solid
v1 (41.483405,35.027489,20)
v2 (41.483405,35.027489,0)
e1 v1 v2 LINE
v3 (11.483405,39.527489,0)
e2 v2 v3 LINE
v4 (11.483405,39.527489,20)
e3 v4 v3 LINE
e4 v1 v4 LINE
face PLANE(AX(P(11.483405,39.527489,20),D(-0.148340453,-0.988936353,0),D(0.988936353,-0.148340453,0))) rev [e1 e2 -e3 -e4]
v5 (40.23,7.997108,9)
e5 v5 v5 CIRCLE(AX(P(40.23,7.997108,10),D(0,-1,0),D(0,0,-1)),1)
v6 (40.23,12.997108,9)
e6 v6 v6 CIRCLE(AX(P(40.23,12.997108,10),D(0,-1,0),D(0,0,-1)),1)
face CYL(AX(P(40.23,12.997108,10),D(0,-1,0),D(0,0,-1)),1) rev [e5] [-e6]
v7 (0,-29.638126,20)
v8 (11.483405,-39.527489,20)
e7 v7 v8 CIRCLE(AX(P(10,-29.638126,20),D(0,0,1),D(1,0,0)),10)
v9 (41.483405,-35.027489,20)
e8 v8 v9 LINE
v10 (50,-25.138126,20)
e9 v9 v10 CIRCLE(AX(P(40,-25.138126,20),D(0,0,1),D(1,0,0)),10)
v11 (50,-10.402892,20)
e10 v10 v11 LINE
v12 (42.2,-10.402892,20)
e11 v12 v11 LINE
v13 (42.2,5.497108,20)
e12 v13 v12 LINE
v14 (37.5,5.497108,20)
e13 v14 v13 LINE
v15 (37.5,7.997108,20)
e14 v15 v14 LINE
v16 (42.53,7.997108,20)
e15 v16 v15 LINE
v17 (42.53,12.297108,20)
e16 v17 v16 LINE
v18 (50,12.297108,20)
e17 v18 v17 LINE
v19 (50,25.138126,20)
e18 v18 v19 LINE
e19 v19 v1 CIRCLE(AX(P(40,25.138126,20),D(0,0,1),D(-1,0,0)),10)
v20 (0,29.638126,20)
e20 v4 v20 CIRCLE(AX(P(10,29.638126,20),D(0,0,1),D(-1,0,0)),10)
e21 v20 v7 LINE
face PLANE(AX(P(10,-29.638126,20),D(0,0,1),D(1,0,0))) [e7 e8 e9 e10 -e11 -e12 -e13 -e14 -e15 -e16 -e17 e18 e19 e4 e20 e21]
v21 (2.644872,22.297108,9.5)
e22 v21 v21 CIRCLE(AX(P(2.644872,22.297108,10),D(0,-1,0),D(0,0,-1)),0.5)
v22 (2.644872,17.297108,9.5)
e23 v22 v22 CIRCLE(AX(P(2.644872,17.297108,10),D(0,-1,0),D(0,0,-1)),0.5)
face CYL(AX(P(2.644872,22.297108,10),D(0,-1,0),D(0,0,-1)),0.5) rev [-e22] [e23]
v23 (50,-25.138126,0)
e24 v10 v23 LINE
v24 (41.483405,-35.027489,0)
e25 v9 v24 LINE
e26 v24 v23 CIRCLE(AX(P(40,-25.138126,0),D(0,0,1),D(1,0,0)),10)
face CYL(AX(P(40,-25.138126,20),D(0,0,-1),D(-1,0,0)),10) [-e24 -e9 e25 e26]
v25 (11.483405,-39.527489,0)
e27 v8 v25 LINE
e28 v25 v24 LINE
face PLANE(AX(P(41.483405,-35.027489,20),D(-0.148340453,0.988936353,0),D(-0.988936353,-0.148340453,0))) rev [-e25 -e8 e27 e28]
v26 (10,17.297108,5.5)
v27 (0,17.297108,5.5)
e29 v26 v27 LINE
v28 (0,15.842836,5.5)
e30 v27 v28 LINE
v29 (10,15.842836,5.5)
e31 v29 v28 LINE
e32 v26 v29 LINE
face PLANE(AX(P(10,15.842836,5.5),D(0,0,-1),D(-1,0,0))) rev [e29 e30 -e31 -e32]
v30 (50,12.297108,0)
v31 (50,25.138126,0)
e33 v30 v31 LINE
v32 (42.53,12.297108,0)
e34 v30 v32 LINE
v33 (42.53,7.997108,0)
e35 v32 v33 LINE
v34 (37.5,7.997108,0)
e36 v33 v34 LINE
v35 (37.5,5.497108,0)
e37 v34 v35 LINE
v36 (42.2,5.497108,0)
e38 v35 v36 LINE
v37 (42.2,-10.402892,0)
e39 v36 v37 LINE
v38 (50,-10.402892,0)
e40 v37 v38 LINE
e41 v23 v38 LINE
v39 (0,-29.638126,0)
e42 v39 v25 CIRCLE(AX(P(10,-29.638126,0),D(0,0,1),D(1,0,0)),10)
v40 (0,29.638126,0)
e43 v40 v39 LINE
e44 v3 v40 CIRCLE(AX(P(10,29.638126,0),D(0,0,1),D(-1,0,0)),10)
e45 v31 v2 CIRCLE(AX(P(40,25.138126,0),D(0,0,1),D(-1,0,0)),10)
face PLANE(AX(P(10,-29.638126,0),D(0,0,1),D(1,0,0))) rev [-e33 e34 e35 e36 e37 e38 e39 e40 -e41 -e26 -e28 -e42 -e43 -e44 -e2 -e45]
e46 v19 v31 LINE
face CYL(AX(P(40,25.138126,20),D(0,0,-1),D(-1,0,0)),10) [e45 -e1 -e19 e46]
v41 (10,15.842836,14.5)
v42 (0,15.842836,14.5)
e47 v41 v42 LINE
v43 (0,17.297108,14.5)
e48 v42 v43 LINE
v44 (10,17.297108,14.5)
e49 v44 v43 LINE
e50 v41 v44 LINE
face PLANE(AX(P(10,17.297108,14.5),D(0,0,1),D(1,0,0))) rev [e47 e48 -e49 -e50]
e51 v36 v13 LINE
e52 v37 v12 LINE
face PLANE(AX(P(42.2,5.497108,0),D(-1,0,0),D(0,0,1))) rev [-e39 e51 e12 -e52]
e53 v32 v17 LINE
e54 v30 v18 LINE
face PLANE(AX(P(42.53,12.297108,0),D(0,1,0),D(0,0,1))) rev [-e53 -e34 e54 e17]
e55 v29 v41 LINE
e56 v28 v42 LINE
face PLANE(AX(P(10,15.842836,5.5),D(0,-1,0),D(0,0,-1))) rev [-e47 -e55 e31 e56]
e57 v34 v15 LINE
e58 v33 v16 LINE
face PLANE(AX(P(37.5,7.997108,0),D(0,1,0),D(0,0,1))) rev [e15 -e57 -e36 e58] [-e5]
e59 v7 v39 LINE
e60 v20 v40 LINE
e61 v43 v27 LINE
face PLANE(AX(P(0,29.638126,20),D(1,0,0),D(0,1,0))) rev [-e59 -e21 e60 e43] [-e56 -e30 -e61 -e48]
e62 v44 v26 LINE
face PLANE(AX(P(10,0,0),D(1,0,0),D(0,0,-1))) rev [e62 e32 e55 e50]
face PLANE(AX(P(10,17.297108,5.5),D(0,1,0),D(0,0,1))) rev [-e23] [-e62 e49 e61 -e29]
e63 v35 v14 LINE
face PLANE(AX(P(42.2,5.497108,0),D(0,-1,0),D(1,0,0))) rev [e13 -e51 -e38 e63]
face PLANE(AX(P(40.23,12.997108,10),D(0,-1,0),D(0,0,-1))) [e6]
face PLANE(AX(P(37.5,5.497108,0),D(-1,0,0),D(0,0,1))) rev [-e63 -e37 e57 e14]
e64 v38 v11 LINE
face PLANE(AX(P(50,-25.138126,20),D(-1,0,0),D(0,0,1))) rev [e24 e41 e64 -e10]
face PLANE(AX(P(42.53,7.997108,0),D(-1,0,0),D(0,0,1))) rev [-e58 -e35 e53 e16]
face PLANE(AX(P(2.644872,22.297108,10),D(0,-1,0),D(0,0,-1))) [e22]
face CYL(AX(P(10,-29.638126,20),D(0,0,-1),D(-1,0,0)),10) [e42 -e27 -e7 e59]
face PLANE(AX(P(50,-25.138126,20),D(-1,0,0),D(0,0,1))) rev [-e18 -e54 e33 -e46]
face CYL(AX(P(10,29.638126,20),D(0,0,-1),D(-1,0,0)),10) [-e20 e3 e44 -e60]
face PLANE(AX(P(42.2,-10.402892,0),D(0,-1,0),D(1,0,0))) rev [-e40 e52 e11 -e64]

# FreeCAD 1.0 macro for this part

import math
import FreeCAD as App
import Part
import Sketcher

V = App.Vector

doc = App.newDocument("Part")
body = doc.addObject("PartDesign::Body", "Body")

sketch1 = body.newObject("Sketcher::SketchObject", "Sketch")
sketch1.AttachmentSupport = (doc.getObject("XY_Plane"), [""])
sketch1.MapMode = "FlatFace"
sketch1.addGeometry(Part.LineSegment(V(0, 30, 0), V(0, -30, 0)), False)
sketch1.addGeometry(Part.ArcOfCircle(Part.Circle(V(10, -30, 0), V(0, 0, 1), 10), math.radians(-180), math.radians(-81)), False)
sketch1.addGeometry(Part.LineSegment(V(11, -40, 0), V(41, -35, 0)), False)
sketch1.addGeometry(Part.ArcOfCircle(Part.Circle(V(40, -25, 0), V(0, 0, 1), 10), math.radians(-81), math.radians(0)), False)
sketch1.addGeometry(Part.LineSegment(V(50, -25, 0), V(50, 25, 0)), False)
sketch1.addGeometry(Part.ArcOfCircle(Part.Circle(V(40, 25, 0), V(0, 0, 1), 10), math.radians(0), math.radians(81)), False)
sketch1.addGeometry(Part.LineSegment(V(41, 35, 0), V(11, 40, 0)), False)
sketch1.addGeometry(Part.ArcOfCircle(Part.Circle(V(10, 30, 0), V(0, 0, 1), 10), math.radians(81), math.radians(180)), False)
sketch1.addConstraint(Sketcher.Constraint("Tangent", 0, 2, 1, 1))
sketch1.addConstraint(Sketcher.Constraint("Tangent", 1, 2, 2, 1))
sketch1.addConstraint(Sketcher.Constraint("Tangent", 2, 2, 3, 1))
sketch1.addConstraint(Sketcher.Constraint("Tangent", 3, 2, 4, 1))
sketch1.addConstraint(Sketcher.Constraint("Tangent", 4, 2, 5, 1))
sketch1.addConstraint(Sketcher.Constraint("Tangent", 5, 2, 6, 1))
sketch1.addConstraint(Sketcher.Constraint("Tangent", 6, 2, 7, 1))
sketch1.addConstraint(Sketcher.Constraint("Tangent", 7, 2, 0, 1))
sketch1.addConstraint(Sketcher.Constraint("Vertical", 0))
sketch1.addConstraint(Sketcher.Constraint("Vertical", 4))
sketch1.addConstraint(Sketcher.Constraint("Equal", 1, 3))
sketch1.addConstraint(Sketcher.Constraint("Equal", 3, 5))
sketch1.addConstraint(Sketcher.Constraint("Equal", 5, 7))
sketch1.addConstraint(Sketcher.Constraint("Symmetric", 0, 2, 7, 2, -1, 1))
sketch1.addConstraint(Sketcher.Constraint("Vertical", 2, 2, 5, 2))
sketch1.addConstraint(Sketcher.Constraint("Radius", 1, 10.0))
sketch1.addConstraint(Sketcher.Constraint("DistanceX", -1, 1, 3, 3, 40.0))
sketch1.addConstraint(Sketcher.Constraint("DistanceY", 1, 3, 3, 3, 4.5))
sketch1.addConstraint(Sketcher.Constraint("DistanceY", 0, 2, 0, 1, 59.276252))
pad1 = body.newObject("PartDesign::Pad", "Pad")
pad1.Profile = sketch1
pad1.Length = 20

sketch2 = body.newObject("Sketcher::SketchObject", "Sketch001")
sketch2.AttachmentSupport = (doc.getObject("YZ_Plane"), [""])
sketch2.MapMode = "FlatFace"
sketch2.addGeometry(Part.LineSegment(V(17.3, 5.5, 0), V(15.8, 5.5, 0)), False)
sketch2.addGeometry(Part.LineSegment(V(15.8, 5.5, 0), V(15.8, 14.5, 0)), False)
sketch2.addGeometry(Part.LineSegment(V(15.8, 14.5, 0), V(17.3, 14.5, 0)), False)
sketch2.addGeometry(Part.LineSegment(V(17.3, 14.5, 0), V(17.3, 5.5, 0)), False)
sketch2.addConstraint(Sketcher.Constraint("Coincident", 0, 2, 1, 1))
sketch2.addConstraint(Sketcher.Constraint("Coincident", 1, 2, 2, 1))
sketch2.addConstraint(Sketcher.Constraint("Coincident", 2, 2, 3, 1))
sketch2.addConstraint(Sketcher.Constraint("Coincident", 3, 2, 0, 1))
sketch2.addConstraint(Sketcher.Constraint("Horizontal", 0))
sketch2.addConstraint(Sketcher.Constraint("Vertical", 1))
sketch2.addConstraint(Sketcher.Constraint("Horizontal", 2))
sketch2.addConstraint(Sketcher.Constraint("Vertical", 3))
sketch2.addConstraint(Sketcher.Constraint("DistanceY", 1, 1, 1, 2, 9.0))
sketch2.addConstraint(Sketcher.Constraint("DistanceY", -1, 1, 0, 2, 5.5))
sketch2.addConstraint(Sketcher.Constraint("DistanceX", 0, 2, 0, 1, 1.454272))
sketch2.addConstraint(Sketcher.Constraint("DistanceX", -1, 1, 2, 2, 17.297108))
pocket1 = body.newObject("PartDesign::Pocket", "Pocket")
pocket1.Profile = sketch2
pocket1.Length = 10
pocket1.Reversed = True

sketch3 = body.newObject("Sketcher::SketchObject", "Sketch002")
sketch3.AttachmentSupport = (doc.getObject("XZ_Plane"), [""])
sketch3.MapMode = "FlatFace"
sketch3.AttachmentOffset = App.Placement(V(0, 0, -17.297108), App.Rotation())
sketch3.addGeometry(Part.Circle(V(2.6, 10, 0), V(0, 0, 1), 0.5), False)
sketch3.addConstraint(Sketcher.Constraint("Diameter", 0, 1.0))
sketch3.addConstraint(Sketcher.Constraint("DistanceY", -1, 1, 0, 3, 10.0))
sketch3.addConstraint(Sketcher.Constraint("DistanceX", -1, 1, 0, 3, 2.644872))
pocket2 = body.newObject("PartDesign::Pocket", "Pocket001")
pocket2.Profile = sketch3
pocket2.Length = 5

sketch4 = body.newObject("Sketcher::SketchObject", "Sketch003")
sketch4.AttachmentSupport = (doc.getObject("XY_Plane"), [""])
sketch4.MapMode = "FlatFace"
sketch4.AttachmentOffset = App.Placement(V(0, 0, 20), App.Rotation())
sketch4.addGeometry(Part.LineSegment(V(42.2, 5.5, 0), V(42.2, -10.4, 0)), False)
sketch4.addGeometry(Part.LineSegment(V(42.2, -10.4, 0), V(50, -10.4, 0)), False)
sketch4.addGeometry(Part.LineSegment(V(50, -10.4, 0), V(50, 12.3, 0)), False)
sketch4.addGeometry(Part.LineSegment(V(50, 12.3, 0), V(42.5, 12.3, 0)), False)
sketch4.addGeometry(Part.LineSegment(V(42.5, 12.3, 0), V(42.5, 8, 0)), False)
sketch4.addGeometry(Part.LineSegment(V(42.5, 8, 0), V(37.5, 8, 0)), False)
sketch4.addGeometry(Part.LineSegment(V(37.5, 8, 0), V(37.5, 5.5, 0)), False)
sketch4.addGeometry(Part.LineSegment(V(37.5, 5.5, 0), V(42.2, 5.5, 0)), False)
sketch4.addConstraint(Sketcher.Constraint("Coincident", 0, 2, 1, 1))
sketch4.addConstraint(Sketcher.Constraint("Coincident", 1, 2, 2, 1))
sketch4.addConstraint(Sketcher.Constraint("Coincident", 2, 2, 3, 1))
sketch4.addConstraint(Sketcher.Constraint("Coincident", 3, 2, 4, 1))
sketch4.addConstraint(Sketcher.Constraint("Coincident", 4, 2, 5, 1))
sketch4.addConstraint(Sketcher.Constraint("Coincident", 5, 2, 6, 1))
sketch4.addConstraint(Sketcher.Constraint("Coincident", 6, 2, 7, 1))
sketch4.addConstraint(Sketcher.Constraint("Coincident", 7, 2, 0, 1))
sketch4.addConstraint(Sketcher.Constraint("Vertical", 0))
sketch4.addConstraint(Sketcher.Constraint("Horizontal", 1))
sketch4.addConstraint(Sketcher.Constraint("Vertical", 2))
sketch4.addConstraint(Sketcher.Constraint("Horizontal", 3))
sketch4.addConstraint(Sketcher.Constraint("Vertical", 4))
sketch4.addConstraint(Sketcher.Constraint("Horizontal", 5))
sketch4.addConstraint(Sketcher.Constraint("Vertical", 6))
sketch4.addConstraint(Sketcher.Constraint("Horizontal", 7))
sketch4.addConstraint(Sketcher.Constraint("DistanceX", 1, 1, 1, 2, 7.8))
sketch4.addConstraint(Sketcher.Constraint("DistanceX", 7, 1, 7, 2, 4.7))
sketch4.addConstraint(Sketcher.Constraint("DistanceY", 0, 2, 0, 1, 15.9))
sketch4.addConstraint(Sketcher.Constraint("DistanceY", 2, 1, 2, 2, 22.7))
sketch4.addConstraint(Sketcher.Constraint("DistanceY", 4, 2, 4, 1, 4.3))
sketch4.addConstraint(Sketcher.Constraint("DistanceX", -1, 1, 1, 2, 50.0))
sketch4.addConstraint(Sketcher.Constraint("DistanceX", 3, 2, 3, 1, 7.47))
sketch4.addConstraint(Sketcher.Constraint("DistanceY", 0, 2, -1, 1, 10.402892))
pocket3 = body.newObject("PartDesign::Pocket", "Pocket002")
pocket3.Profile = sketch4
pocket3.Type = "ThroughAll"

sketch5 = body.newObject("Sketcher::SketchObject", "Sketch004")
sketch5.AttachmentSupport = (doc.getObject("XZ_Plane"), [""])
sketch5.MapMode = "FlatFace"
sketch5.AttachmentOffset = App.Placement(V(0, 0, -7.997108), App.Rotation())
sketch5.addGeometry(Part.Circle(V(40.2, 10, 0), V(0, 0, 1), 1), False)
sketch5.addConstraint(Sketcher.Constraint("Diameter", 0, 2.0))
sketch5.addConstraint(Sketcher.Constraint("DistanceY", -1, 1, 0, 3, 10.0))
sketch5.addConstraint(Sketcher.Constraint("DistanceX", -1, 1, 0, 3, 40.23))
pocket4 = body.newObject("PartDesign::Pocket", "Pocket003")
pocket4.Profile = sketch5
pocket4.Length = 5

doc.recompute()
